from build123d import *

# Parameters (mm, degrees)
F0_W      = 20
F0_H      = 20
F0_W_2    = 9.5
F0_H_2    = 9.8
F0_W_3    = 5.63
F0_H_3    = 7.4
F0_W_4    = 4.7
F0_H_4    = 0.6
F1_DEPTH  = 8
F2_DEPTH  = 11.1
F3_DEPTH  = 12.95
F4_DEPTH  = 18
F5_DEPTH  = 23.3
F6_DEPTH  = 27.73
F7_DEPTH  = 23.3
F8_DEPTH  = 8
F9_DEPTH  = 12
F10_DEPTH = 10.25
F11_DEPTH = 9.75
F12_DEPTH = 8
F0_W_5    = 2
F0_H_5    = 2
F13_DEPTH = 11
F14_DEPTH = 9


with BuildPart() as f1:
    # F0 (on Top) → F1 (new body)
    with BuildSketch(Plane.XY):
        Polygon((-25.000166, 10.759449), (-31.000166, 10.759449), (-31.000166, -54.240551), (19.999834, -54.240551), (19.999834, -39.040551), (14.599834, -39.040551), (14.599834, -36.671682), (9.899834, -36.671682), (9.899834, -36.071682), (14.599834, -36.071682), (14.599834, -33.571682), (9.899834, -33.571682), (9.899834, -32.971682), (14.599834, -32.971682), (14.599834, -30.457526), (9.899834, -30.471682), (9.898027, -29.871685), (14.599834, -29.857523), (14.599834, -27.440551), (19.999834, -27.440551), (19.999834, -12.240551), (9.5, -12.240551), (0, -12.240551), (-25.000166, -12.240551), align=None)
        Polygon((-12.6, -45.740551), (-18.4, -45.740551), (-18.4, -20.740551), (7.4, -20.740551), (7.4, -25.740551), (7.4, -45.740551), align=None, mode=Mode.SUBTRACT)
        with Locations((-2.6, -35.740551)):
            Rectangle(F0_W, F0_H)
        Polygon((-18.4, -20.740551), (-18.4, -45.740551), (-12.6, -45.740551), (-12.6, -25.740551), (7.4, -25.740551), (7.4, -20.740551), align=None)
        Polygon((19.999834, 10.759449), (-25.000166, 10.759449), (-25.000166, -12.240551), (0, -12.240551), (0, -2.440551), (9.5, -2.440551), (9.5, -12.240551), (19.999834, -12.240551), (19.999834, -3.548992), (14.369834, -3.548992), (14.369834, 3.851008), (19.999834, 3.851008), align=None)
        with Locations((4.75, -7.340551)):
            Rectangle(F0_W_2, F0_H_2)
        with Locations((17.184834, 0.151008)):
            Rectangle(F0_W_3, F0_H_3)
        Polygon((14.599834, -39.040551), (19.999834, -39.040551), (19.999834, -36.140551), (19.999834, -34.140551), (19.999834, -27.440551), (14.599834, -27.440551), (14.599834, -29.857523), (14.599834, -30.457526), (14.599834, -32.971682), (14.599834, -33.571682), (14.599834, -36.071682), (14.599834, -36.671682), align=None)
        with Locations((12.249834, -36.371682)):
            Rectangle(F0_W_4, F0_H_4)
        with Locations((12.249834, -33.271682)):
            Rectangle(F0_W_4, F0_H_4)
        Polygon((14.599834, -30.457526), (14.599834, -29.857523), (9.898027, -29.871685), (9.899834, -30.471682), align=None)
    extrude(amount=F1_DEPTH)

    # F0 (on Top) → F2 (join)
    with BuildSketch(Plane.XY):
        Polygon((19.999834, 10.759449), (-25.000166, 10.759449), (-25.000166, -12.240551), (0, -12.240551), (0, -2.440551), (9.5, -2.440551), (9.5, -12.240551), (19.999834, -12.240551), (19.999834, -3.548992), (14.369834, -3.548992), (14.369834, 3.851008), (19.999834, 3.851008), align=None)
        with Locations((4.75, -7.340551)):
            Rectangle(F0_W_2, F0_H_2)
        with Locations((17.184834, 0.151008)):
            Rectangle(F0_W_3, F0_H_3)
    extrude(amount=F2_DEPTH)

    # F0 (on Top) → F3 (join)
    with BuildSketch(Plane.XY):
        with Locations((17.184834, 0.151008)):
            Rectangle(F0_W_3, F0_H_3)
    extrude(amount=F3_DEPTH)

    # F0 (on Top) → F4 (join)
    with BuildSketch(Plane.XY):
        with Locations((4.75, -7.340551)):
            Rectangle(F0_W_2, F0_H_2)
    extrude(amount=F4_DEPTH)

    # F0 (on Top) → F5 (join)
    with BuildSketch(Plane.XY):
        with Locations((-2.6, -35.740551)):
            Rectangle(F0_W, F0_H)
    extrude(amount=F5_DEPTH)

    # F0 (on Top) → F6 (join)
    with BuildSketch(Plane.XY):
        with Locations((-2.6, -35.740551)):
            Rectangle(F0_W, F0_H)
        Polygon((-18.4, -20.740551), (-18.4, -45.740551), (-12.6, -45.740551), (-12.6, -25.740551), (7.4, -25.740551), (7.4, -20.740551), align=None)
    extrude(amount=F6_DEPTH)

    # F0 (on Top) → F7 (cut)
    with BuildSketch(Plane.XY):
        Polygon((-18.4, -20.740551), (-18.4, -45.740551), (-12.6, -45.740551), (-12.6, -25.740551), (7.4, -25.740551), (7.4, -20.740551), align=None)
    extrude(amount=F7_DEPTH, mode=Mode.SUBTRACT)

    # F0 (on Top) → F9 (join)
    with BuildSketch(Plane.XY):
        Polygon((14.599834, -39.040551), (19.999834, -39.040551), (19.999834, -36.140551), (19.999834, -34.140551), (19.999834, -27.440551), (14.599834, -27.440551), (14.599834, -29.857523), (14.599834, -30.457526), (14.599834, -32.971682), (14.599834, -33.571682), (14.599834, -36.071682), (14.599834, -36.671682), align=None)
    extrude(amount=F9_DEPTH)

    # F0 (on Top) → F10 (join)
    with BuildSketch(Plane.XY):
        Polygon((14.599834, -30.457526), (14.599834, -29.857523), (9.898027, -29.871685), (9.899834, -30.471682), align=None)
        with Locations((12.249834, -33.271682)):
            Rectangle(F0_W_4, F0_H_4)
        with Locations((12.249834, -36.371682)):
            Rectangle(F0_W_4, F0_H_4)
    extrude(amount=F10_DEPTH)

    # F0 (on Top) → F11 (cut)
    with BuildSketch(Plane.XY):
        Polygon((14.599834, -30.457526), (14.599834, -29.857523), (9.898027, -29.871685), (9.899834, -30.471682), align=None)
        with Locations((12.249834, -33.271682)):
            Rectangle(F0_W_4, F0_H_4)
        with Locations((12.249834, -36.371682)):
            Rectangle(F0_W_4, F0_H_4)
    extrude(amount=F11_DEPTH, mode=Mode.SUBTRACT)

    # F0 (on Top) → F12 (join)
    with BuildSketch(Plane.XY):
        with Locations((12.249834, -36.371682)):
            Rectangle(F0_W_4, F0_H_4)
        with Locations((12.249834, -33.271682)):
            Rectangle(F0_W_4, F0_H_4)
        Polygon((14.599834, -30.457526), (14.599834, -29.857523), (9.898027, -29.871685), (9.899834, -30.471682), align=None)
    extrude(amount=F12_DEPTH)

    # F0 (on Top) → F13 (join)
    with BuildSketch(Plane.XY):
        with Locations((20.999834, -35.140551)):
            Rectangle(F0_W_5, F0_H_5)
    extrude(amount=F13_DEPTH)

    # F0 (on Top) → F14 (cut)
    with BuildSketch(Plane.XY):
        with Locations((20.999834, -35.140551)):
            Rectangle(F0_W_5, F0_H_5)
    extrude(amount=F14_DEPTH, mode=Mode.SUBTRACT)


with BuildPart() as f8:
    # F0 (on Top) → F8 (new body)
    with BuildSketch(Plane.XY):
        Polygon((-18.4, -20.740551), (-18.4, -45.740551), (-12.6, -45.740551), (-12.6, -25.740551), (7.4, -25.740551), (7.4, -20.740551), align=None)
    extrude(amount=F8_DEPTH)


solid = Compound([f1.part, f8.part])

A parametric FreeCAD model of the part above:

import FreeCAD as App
import Part
import Sketcher
from FreeCAD import Vector
Q = App.Units.Quantity


def add_polygon(sketch, points):
    """Adds a closed chain of lines whose ends are joined by coincident constraints."""
    first, n = sketch.GeometryCount, len(points)
    for a, b in zip(points, points[1:] + points[:1]):
        sketch.addGeometry(Part.LineSegment(App.Vector(*a, 0), App.Vector(*b, 0)), False)
    for i in range(n):
        sketch.addConstraint(Sketcher.Constraint("Coincident", first + i, 2, first + (i + 1) % n, 1))

doc = App.newDocument("Part")
body = doc.addObject("PartDesign::Body", "Body")

sketch1 = body.newObject("Sketcher::SketchObject", "Sketch")
sketch1.AttachmentSupport = (doc.getObject("XY_Plane"), [""])
sketch1.MapMode = "FlatFace"
add_polygon(sketch1, [(-31, 11), (-31, -54), (20, -54), (20, 11)])
sketch1.addConstraint([
    Sketcher.Constraint("Vertical", 0),
    Sketcher.Constraint("Horizontal", 1),
    Sketcher.Constraint("Vertical", 2),
    Sketcher.Constraint("Horizontal", 3),
    Sketcher.Constraint("DistanceX", 1, 1, 1, 2, Q("51 mm")),
    Sketcher.Constraint("DistanceY", 0, 2, 0, 1, Q("65 mm")),
    Sketcher.Constraint("DistanceY", 0, 2, -1, 1, Q("54.240551 mm")),
    Sketcher.Constraint("DistanceX", 0, 2, -1, 1, Q("31.000166 mm")),
])
pad1 = body.newObject("PartDesign::Pad", "Pad")
pad1.Profile = sketch1
pad1.Length = 8

sketch2 = body.newObject("Sketcher::SketchObject", "Sketch001")
sketch2.AttachmentSupport = (doc.getObject("XY_Plane"), [""])
sketch2.MapMode = "FlatFace"
add_polygon(sketch2, [(20, 11), (-25, 11), (-25, -12), (20, -12)])
sketch2.addConstraint([
    Sketcher.Constraint("Horizontal", 0),
    Sketcher.Constraint("Vertical", 1),
    Sketcher.Constraint("Horizontal", 2),
    Sketcher.Constraint("Vertical", 3),
    Sketcher.Constraint("DistanceX", 0, 2, 0, 1, Q("45 mm")),
    Sketcher.Constraint("DistanceY", 1, 2, 1, 1, Q("23 mm")),
    Sketcher.Constraint("DistanceY", -1, 1, 0, 2, Q("10.759449 mm")),
    Sketcher.Constraint("DistanceX", 0, 2, -1, 1, Q("25.000166 mm")),
])
pad2 = body.newObject("PartDesign::Pad", "Pad001")
pad2.Profile = sketch2
pad2.Length = 11.1

sketch3 = body.newObject("Sketcher::SketchObject", "Sketch002")
sketch3.AttachmentSupport = (doc.getObject("XY_Plane"), [""])
sketch3.MapMode = "FlatFace"
add_polygon(sketch3, [(14, 4), (14, -4), (20, -4), (20, 4)])
sketch3.addConstraint([
    Sketcher.Constraint("Vertical", 0),
    Sketcher.Constraint("Horizontal", 1),
    Sketcher.Constraint("Vertical", 2),
    Sketcher.Constraint("Horizontal", 3),
    Sketcher.Constraint("DistanceY", 0, 2, 0, 1, Q("7.4 mm")),
    Sketcher.Constraint("DistanceX", 1, 1, 1, 2, Q("5.63 mm")),
    Sketcher.Constraint("DistanceY", -1, 1, 2, 2, Q("3.851008 mm")),
    Sketcher.Constraint("DistanceX", -1, 1, 0, 2, Q("14.369834 mm")),
])
pad3 = body.newObject("PartDesign::Pad", "Pad002")
pad3.Profile = sketch3
pad3.Length = 12.95

sketch4 = body.newObject("Sketcher::SketchObject", "Sketch003")
sketch4.AttachmentSupport = (doc.getObject("XY_Plane"), [""])
sketch4.MapMode = "FlatFace"
add_polygon(sketch4, [(0, -2), (0, -12), (10, -12), (10, -2)])
sketch4.addConstraint([
    Sketcher.Constraint("Vertical", 0),
    Sketcher.Constraint("Horizontal", 1),
    Sketcher.Constraint("Vertical", 2),
    Sketcher.Constraint("Horizontal", 3),
    Sketcher.Constraint("PointOnObject", 0, 2, -2),
    Sketcher.Constraint("DistanceX", 1, 1, 1, 2, Q("9.5 mm")),
    Sketcher.Constraint("DistanceY", 0, 2, 0, 1, Q("9.8 mm")),
    Sketcher.Constraint("DistanceY", 0, 2, -1, 1, Q("12.240551 mm")),
])
pad4 = body.newObject("PartDesign::Pad", "Pad003")
pad4.Profile = sketch4
pad4.Length = 18

sketch5 = body.newObject("Sketcher::SketchObject", "Sketch004")
sketch5.AttachmentSupport = (doc.getObject("XY_Plane"), [""])
sketch5.MapMode = "FlatFace"
add_polygon(sketch5, [(-13, -26), (-13, -46), (7, -46), (7, -26)])
sketch5.addConstraint([
    Sketcher.Constraint("Vertical", 0),
    Sketcher.Constraint("Horizontal", 1),
    Sketcher.Constraint("Vertical", 2),
    Sketcher.Constraint("Horizontal", 3),
    Sketcher.Constraint("Equal", 3, 0),
    Sketcher.Constraint("DistanceX", 1, 1, 1, 2, Q("20 mm")),
    Sketcher.Constraint("DistanceX", 0, 2, -1, 1, Q("12.6 mm")),
    Sketcher.Constraint("DistanceY", 0, 2, -1, 1, Q("45.740551 mm")),
])
pad5 = body.newObject("PartDesign::Pad", "Pad004")
pad5.Profile = sketch5
pad5.Length = 23.3

sketch6 = body.newObject("Sketcher::SketchObject", "Sketch005")
sketch6.AttachmentSupport = (doc.getObject("XY_Plane"), [""])
sketch6.MapMode = "FlatFace"
add_polygon(sketch6, [(7, -46), (7, -21), (-18, -21), (-18, -46)])
sketch6.addConstraint([
    Sketcher.Constraint("Vertical", 0),
    Sketcher.Constraint("Horizontal", 1),
    Sketcher.Constraint("Vertical", 2),
    Sketcher.Constraint("Horizontal", 3),
    Sketcher.Constraint("DistanceY", 0, 1, 0, 2, Q("25 mm")),
    Sketcher.Constraint("DistanceX", 1, 2, 1, 1, Q("25.8 mm")),
    Sketcher.Constraint("DistanceX", -1, 1, 0, 2, Q("7.4 mm")),
    Sketcher.Constraint("DistanceY", 0, 2, -1, 1, Q("20.740551 mm")),
])
pad6 = body.newObject("PartDesign::Pad", "Pad005")
pad6.Profile = sketch6
pad6.Length = 27.73

sketch7 = body.newObject("Sketcher::SketchObject", "Sketch006")
sketch7.AttachmentSupport = (doc.getObject("XY_Plane"), [""])
sketch7.MapMode = "FlatFace"
add_polygon(sketch7, [(-18, -21), (-18, -46), (-13, -46), (-13, -26), (7, -26), (7, -21)])
sketch7.addConstraint([
    Sketcher.Constraint("Vertical", 0),
    Sketcher.Constraint("Horizontal", 1),
    Sketcher.Constraint("Vertical", 2),
    Sketcher.Constraint("Horizontal", 3),
    Sketcher.Constraint("Vertical", 4),
    Sketcher.Constraint("Horizontal", 5),
    Sketcher.Constraint("Equal", 3, 2),
    Sketcher.Constraint("DistanceX", 3, 1, 3, 2, Q("20 mm")),
    Sketcher.Constraint("DistanceY", 0, 2, 0, 1, Q("25 mm")),
    Sketcher.Constraint("DistanceX", 1, 1, 1, 2, Q("5.8 mm")),
    Sketcher.Constraint("DistanceX", 0, 2, -1, 1, Q("18.4 mm")),
    Sketcher.Constraint("DistanceY", 0, 2, -1, 1, Q("45.740551 mm")),
])
pocket1 = body.newObject("PartDesign::Pocket", "Pocket")
pocket1.Profile = sketch7
pocket1.Length = 23.3
pocket1.Reversed = True

sketch8 = body.newObject("Sketcher::SketchObject", "Sketch007")
sketch8.AttachmentSupport = (doc.getObject("XY_Plane"), [""])
sketch8.MapMode = "FlatFace"
add_polygon(sketch8, [(15, -39), (20, -39), (20, -27), (15, -27)])
sketch8.addConstraint([
    Sketcher.Constraint("Horizontal", 0),
    Sketcher.Constraint("Vertical", 1),
    Sketcher.Constraint("Horizontal", 2),
    Sketcher.Constraint("Vertical", 3),
    Sketcher.Constraint("DistanceX", 0, 1, 0, 2, Q("5.4 mm")),
    Sketcher.Constraint("DistanceY", 1, 1, 1, 2, Q("11.6 mm")),
    Sketcher.Constraint("DistanceY", 0, 2, -1, 1, Q("39.040551 mm")),
    Sketcher.Constraint("DistanceX", -1, 1, 0, 2, Q("19.999834 mm")),
])
pad7 = body.newObject("PartDesign::Pad", "Pad006")
pad7.Profile = sketch8
pad7.Length = 12

sketch9 = body.newObject("Sketcher::SketchObject", "Sketch008")
sketch9.AttachmentSupport = (doc.getObject("XY_Plane"), [""])
sketch9.MapMode = "FlatFace"
add_polygon(sketch9, [(14.6, -30.5), (14.6, -29.9), (9.9, -29.9), (9.9, -30.5)])
add_polygon(sketch9, [(9.9, -33), (9.9, -33.6), (14.6, -33.6), (14.6, -33)])
add_polygon(sketch9, [(9.9, -36.1), (9.9, -36.7), (14.6, -36.7), (14.6, -36.1)])
sketch9.addConstraint([
    Sketcher.Constraint("Vertical", 0),
    Sketcher.Constraint("Vertical", 4),
    Sketcher.Constraint("Horizontal", 5),
    Sketcher.Constraint("Vertical", 6),
    Sketcher.Constraint("Horizontal", 7),
    Sketcher.Constraint("Vertical", 8),
    Sketcher.Constraint("Horizontal", 9),
    Sketcher.Constraint("Vertical", 10),
    Sketcher.Constraint("Horizontal", 11),
    Sketcher.Constraint("Perpendicular", 1, 2),
    Sketcher.Constraint("Perpendicular", 2, 3),
    Sketcher.Constraint("Vertical", 2, 2, 4, 2),
    Sketcher.Constraint("Vertical", 3, 2, 5, 2),
    Sketcher.Constraint("Vertical", 7, 2, 8, 2),
    Sketcher.Constraint("Vertical", 6, 2, 9, 2),
    Sketcher.Constraint("Equal", 6, 8),
    Sketcher.Constraint("DistanceX", 5, 1, 5, 2, Q("4.7 mm")),
    Sketcher.Constraint("DistanceY", 4, 2, 4, 1, Q("0.6 mm")),
    Sketcher.Constraint("Distance", 2, Q("0.6 mm")),
    Sketcher.Constraint("DistanceY", 4, 2, 2, 2, Q("3.1 mm")),
    Sketcher.Constraint("DistanceY", 8, 2, 4, 2, Q("3.1 mm")),
    Sketcher.Constraint("Distance", 1, Q("4.701828 mm")),
    Sketcher.Constraint("DistanceY", 8, 2, -1, 1, Q("36.671682 mm")),
    Sketcher.Constraint("DistanceX", -1, 1, 0, 2, Q("14.599834 mm")),
])
pad8 = body.newObject("PartDesign::Pad", "Pad007")
pad8.Profile = sketch9
pad8.Length = 10.25

sketch10 = body.newObject("Sketcher::SketchObject", "Sketch009")
sketch10.AttachmentSupport = (doc.getObject("XY_Plane"), [""])
sketch10.MapMode = "FlatFace"
add_polygon(sketch10, [(14.6, -30.5), (14.6, -29.9), (9.9, -29.9), (9.9, -30.5)])
add_polygon(sketch10, [(9.9, -33), (9.9, -33.6), (14.6, -33.6), (14.6, -33)])
add_polygon(sketch10, [(9.9, -36.1), (9.9, -36.7), (14.6, -36.7), (14.6, -36.1)])
sketch10.addConstraint([
    Sketcher.Constraint("Vertical", 0),
    Sketcher.Constraint("Vertical", 4),
    Sketcher.Constraint("Horizontal", 5),
    Sketcher.Constraint("Vertical", 6),
    Sketcher.Constraint("Horizontal", 7),
    Sketcher.Constraint("Vertical", 8),
    Sketcher.Constraint("Horizontal", 9),
    Sketcher.Constraint("Vertical", 10),
    Sketcher.Constraint("Horizontal", 11),
    Sketcher.Constraint("Perpendicular", 1, 2),
    Sketcher.Constraint("Perpendicular", 2, 3),
    Sketcher.Constraint("Vertical", 2, 2, 4, 2),
    Sketcher.Constraint("Vertical", 3, 2, 5, 2),
    Sketcher.Constraint("Vertical", 7, 2, 8, 2),
    Sketcher.Constraint("Vertical", 6, 2, 9, 2),
    Sketcher.Constraint("Equal", 6, 8),
    Sketcher.Constraint("DistanceX", 5, 1, 5, 2, Q("4.7 mm")),
    Sketcher.Constraint("DistanceY", 4, 2, 4, 1, Q("0.6 mm")),
    Sketcher.Constraint("Distance", 2, Q("0.6 mm")),
    Sketcher.Constraint("DistanceY", 4, 2, 2, 2, Q("3.1 mm")),
    Sketcher.Constraint("DistanceY", 8, 2, 4, 2, Q("3.1 mm")),
    Sketcher.Constraint("Distance", 1, Q("4.701828 mm")),
    Sketcher.Constraint("DistanceY", 8, 2, -1, 1, Q("36.671682 mm")),
    Sketcher.Constraint("DistanceX", -1, 1, 0, 2, Q("14.599834 mm")),
])
pocket2 = body.newObject("PartDesign::Pocket", "Pocket001")
pocket2.Profile = sketch10
pocket2.Length = 9.75
pocket2.Reversed = True

sketch11 = body.newObject("Sketcher::SketchObject", "Sketch010")
sketch11.AttachmentSupport = (doc.getObject("XY_Plane"), [""])
sketch11.MapMode = "FlatFace"
add_polygon(sketch11, [(9.9, -36.1), (9.9, -36.7), (14.6, -36.7), (14.6, -36.1)])
add_polygon(sketch11, [(9.9, -33), (9.9, -33.6), (14.6, -33.6), (14.6, -33)])
add_polygon(sketch11, [(14.6, -30.5), (14.6, -29.9), (9.9, -29.9), (9.9, -30.5)])
sketch11.addConstraint([
    Sketcher.Constraint("Vertical", 0),
    Sketcher.Constraint("Horizontal", 1),
    Sketcher.Constraint("Vertical", 2),
    Sketcher.Constraint("Horizontal", 3),
    Sketcher.Constraint("Vertical", 4),
    Sketcher.Constraint("Horizontal", 5),
    Sketcher.Constraint("Vertical", 6),
    Sketcher.Constraint("Horizontal", 7),
    Sketcher.Constraint("Vertical", 8),
    Sketcher.Constraint("Perpendicular", 9, 10),
    Sketcher.Constraint("Perpendicular", 10, 11),
    Sketcher.Constraint("Vertical", 3, 2, 4, 2),
    Sketcher.Constraint("Vertical", 2, 2, 5, 2),
    Sketcher.Constraint("Vertical", 6, 2, 8, 2),
    Sketcher.Constraint("Vertical", 7, 2, 10, 2),
    Sketcher.Constraint("Equal", 2, 4),
    Sketcher.Constraint("DistanceX", 1, 1, 1, 2, Q("4.7 mm")),
    Sketcher.Constraint("DistanceY", 0, 2, 0, 1, Q("0.6 mm")),
    Sketcher.Constraint("Distance", 10, Q("0.6 mm")),
    Sketcher.Constraint("DistanceY", 3, 2, 4, 2, Q("2.5 mm")),
    Sketcher.Constraint("DistanceY", 7, 2, 10, 2, Q("2.5 mm")),
    Sketcher.Constraint("Distance", 9, Q("4.701828 mm")),
    Sketcher.Constraint("DistanceY", 0, 2, -1, 1, Q("36.671682 mm")),
    Sketcher.Constraint("DistanceX", -1, 1, 0, 2, Q("9.899834 mm")),
])
pad9 = body.newObject("PartDesign::Pad", "Pad008")
pad9.Profile = sketch11
pad9.Length = 8

sketch12 = body.newObject("Sketcher::SketchObject", "Sketch011")
sketch12.AttachmentSupport = (doc.getObject("XY_Plane"), [""])
sketch12.MapMode = "FlatFace"
add_polygon(sketch12, [(20, -34.1), (20, -36.1), (22, -36.1), (22, -34.1)])
sketch12.addConstraint([
    Sketcher.Constraint("Vertical", 0),
    Sketcher.Constraint("Horizontal", 1),
    Sketcher.Constraint("Vertical", 2),
    Sketcher.Constraint("Horizontal", 3),
    Sketcher.Constraint("Equal", 3, 0),
    Sketcher.Constraint("DistanceX", 1, 1, 1, 2, Q("2 mm")),
    Sketcher.Constraint("DistanceY", 0, 2, -1, 1, Q("36.140551 mm")),
    Sketcher.Constraint("DistanceX", -1, 1, 0, 2, Q("19.999834 mm")),
])
pad10 = body.newObject("PartDesign::Pad", "Pad009")
pad10.Profile = sketch12
pad10.Length = 11

sketch13 = body.newObject("Sketcher::SketchObject", "Sketch012")
sketch13.AttachmentSupport = (doc.getObject("XY_Plane"), [""])
sketch13.MapMode = "FlatFace"
add_polygon(sketch13, [(20, -34.1), (20, -36.1), (22, -36.1), (22, -34.1)])
sketch13.addConstraint([
    Sketcher.Constraint("Vertical", 0),
    Sketcher.Constraint("Horizontal", 1),
    Sketcher.Constraint("Vertical", 2),
    Sketcher.Constraint("Horizontal", 3),
    Sketcher.Constraint("Equal", 3, 0),
    Sketcher.Constraint("DistanceX", 1, 1, 1, 2, Q("2 mm")),
    Sketcher.Constraint("DistanceY", 0, 2, -1, 1, Q("36.140551 mm")),
    Sketcher.Constraint("DistanceX", -1, 1, 0, 2, Q("19.999834 mm")),
])
pocket3 = body.newObject("PartDesign::Pocket", "Pocket002")
pocket3.Profile = sketch13
pocket3.Length = 9
pocket3.Reversed = True
body2 = doc.addObject("PartDesign::Body", "Body001")

sketch14 = body2.newObject("Sketcher::SketchObject", "Sketch013")
sketch14.AttachmentSupport = (doc.getObject("XY_Plane001"), [""])
sketch14.MapMode = "FlatFace"
add_polygon(sketch14, [(-18, -21), (-18, -46), (-13, -46), (-13, -26), (7, -26), (7, -21)])
sketch14.addConstraint([
    Sketcher.Constraint("Vertical", 0),
    Sketcher.Constraint("Horizontal", 1),
    Sketcher.Constraint("Vertical", 2),
    Sketcher.Constraint("Horizontal", 3),
    Sketcher.Constraint("Vertical", 4),
    Sketcher.Constraint("Horizontal", 5),
    Sketcher.Constraint("Equal", 3, 2),
    Sketcher.Constraint("DistanceX", 3, 1, 3, 2, Q("20 mm")),
    Sketcher.Constraint("DistanceY", 0, 2, 0, 1, Q("25 mm")),
    Sketcher.Constraint("DistanceX", 1, 1, 1, 2, Q("5.8 mm")),
    Sketcher.Constraint("DistanceX", 0, 2, -1, 1, Q("18.4 mm")),
    Sketcher.Constraint("DistanceY", 0, 2, -1, 1, Q("45.740551 mm")),
])
pad11 = body2.newObject("PartDesign::Pad", "Pad010")
pad11.Profile = sketch14
pad11.Length = 8

doc.recompute()
